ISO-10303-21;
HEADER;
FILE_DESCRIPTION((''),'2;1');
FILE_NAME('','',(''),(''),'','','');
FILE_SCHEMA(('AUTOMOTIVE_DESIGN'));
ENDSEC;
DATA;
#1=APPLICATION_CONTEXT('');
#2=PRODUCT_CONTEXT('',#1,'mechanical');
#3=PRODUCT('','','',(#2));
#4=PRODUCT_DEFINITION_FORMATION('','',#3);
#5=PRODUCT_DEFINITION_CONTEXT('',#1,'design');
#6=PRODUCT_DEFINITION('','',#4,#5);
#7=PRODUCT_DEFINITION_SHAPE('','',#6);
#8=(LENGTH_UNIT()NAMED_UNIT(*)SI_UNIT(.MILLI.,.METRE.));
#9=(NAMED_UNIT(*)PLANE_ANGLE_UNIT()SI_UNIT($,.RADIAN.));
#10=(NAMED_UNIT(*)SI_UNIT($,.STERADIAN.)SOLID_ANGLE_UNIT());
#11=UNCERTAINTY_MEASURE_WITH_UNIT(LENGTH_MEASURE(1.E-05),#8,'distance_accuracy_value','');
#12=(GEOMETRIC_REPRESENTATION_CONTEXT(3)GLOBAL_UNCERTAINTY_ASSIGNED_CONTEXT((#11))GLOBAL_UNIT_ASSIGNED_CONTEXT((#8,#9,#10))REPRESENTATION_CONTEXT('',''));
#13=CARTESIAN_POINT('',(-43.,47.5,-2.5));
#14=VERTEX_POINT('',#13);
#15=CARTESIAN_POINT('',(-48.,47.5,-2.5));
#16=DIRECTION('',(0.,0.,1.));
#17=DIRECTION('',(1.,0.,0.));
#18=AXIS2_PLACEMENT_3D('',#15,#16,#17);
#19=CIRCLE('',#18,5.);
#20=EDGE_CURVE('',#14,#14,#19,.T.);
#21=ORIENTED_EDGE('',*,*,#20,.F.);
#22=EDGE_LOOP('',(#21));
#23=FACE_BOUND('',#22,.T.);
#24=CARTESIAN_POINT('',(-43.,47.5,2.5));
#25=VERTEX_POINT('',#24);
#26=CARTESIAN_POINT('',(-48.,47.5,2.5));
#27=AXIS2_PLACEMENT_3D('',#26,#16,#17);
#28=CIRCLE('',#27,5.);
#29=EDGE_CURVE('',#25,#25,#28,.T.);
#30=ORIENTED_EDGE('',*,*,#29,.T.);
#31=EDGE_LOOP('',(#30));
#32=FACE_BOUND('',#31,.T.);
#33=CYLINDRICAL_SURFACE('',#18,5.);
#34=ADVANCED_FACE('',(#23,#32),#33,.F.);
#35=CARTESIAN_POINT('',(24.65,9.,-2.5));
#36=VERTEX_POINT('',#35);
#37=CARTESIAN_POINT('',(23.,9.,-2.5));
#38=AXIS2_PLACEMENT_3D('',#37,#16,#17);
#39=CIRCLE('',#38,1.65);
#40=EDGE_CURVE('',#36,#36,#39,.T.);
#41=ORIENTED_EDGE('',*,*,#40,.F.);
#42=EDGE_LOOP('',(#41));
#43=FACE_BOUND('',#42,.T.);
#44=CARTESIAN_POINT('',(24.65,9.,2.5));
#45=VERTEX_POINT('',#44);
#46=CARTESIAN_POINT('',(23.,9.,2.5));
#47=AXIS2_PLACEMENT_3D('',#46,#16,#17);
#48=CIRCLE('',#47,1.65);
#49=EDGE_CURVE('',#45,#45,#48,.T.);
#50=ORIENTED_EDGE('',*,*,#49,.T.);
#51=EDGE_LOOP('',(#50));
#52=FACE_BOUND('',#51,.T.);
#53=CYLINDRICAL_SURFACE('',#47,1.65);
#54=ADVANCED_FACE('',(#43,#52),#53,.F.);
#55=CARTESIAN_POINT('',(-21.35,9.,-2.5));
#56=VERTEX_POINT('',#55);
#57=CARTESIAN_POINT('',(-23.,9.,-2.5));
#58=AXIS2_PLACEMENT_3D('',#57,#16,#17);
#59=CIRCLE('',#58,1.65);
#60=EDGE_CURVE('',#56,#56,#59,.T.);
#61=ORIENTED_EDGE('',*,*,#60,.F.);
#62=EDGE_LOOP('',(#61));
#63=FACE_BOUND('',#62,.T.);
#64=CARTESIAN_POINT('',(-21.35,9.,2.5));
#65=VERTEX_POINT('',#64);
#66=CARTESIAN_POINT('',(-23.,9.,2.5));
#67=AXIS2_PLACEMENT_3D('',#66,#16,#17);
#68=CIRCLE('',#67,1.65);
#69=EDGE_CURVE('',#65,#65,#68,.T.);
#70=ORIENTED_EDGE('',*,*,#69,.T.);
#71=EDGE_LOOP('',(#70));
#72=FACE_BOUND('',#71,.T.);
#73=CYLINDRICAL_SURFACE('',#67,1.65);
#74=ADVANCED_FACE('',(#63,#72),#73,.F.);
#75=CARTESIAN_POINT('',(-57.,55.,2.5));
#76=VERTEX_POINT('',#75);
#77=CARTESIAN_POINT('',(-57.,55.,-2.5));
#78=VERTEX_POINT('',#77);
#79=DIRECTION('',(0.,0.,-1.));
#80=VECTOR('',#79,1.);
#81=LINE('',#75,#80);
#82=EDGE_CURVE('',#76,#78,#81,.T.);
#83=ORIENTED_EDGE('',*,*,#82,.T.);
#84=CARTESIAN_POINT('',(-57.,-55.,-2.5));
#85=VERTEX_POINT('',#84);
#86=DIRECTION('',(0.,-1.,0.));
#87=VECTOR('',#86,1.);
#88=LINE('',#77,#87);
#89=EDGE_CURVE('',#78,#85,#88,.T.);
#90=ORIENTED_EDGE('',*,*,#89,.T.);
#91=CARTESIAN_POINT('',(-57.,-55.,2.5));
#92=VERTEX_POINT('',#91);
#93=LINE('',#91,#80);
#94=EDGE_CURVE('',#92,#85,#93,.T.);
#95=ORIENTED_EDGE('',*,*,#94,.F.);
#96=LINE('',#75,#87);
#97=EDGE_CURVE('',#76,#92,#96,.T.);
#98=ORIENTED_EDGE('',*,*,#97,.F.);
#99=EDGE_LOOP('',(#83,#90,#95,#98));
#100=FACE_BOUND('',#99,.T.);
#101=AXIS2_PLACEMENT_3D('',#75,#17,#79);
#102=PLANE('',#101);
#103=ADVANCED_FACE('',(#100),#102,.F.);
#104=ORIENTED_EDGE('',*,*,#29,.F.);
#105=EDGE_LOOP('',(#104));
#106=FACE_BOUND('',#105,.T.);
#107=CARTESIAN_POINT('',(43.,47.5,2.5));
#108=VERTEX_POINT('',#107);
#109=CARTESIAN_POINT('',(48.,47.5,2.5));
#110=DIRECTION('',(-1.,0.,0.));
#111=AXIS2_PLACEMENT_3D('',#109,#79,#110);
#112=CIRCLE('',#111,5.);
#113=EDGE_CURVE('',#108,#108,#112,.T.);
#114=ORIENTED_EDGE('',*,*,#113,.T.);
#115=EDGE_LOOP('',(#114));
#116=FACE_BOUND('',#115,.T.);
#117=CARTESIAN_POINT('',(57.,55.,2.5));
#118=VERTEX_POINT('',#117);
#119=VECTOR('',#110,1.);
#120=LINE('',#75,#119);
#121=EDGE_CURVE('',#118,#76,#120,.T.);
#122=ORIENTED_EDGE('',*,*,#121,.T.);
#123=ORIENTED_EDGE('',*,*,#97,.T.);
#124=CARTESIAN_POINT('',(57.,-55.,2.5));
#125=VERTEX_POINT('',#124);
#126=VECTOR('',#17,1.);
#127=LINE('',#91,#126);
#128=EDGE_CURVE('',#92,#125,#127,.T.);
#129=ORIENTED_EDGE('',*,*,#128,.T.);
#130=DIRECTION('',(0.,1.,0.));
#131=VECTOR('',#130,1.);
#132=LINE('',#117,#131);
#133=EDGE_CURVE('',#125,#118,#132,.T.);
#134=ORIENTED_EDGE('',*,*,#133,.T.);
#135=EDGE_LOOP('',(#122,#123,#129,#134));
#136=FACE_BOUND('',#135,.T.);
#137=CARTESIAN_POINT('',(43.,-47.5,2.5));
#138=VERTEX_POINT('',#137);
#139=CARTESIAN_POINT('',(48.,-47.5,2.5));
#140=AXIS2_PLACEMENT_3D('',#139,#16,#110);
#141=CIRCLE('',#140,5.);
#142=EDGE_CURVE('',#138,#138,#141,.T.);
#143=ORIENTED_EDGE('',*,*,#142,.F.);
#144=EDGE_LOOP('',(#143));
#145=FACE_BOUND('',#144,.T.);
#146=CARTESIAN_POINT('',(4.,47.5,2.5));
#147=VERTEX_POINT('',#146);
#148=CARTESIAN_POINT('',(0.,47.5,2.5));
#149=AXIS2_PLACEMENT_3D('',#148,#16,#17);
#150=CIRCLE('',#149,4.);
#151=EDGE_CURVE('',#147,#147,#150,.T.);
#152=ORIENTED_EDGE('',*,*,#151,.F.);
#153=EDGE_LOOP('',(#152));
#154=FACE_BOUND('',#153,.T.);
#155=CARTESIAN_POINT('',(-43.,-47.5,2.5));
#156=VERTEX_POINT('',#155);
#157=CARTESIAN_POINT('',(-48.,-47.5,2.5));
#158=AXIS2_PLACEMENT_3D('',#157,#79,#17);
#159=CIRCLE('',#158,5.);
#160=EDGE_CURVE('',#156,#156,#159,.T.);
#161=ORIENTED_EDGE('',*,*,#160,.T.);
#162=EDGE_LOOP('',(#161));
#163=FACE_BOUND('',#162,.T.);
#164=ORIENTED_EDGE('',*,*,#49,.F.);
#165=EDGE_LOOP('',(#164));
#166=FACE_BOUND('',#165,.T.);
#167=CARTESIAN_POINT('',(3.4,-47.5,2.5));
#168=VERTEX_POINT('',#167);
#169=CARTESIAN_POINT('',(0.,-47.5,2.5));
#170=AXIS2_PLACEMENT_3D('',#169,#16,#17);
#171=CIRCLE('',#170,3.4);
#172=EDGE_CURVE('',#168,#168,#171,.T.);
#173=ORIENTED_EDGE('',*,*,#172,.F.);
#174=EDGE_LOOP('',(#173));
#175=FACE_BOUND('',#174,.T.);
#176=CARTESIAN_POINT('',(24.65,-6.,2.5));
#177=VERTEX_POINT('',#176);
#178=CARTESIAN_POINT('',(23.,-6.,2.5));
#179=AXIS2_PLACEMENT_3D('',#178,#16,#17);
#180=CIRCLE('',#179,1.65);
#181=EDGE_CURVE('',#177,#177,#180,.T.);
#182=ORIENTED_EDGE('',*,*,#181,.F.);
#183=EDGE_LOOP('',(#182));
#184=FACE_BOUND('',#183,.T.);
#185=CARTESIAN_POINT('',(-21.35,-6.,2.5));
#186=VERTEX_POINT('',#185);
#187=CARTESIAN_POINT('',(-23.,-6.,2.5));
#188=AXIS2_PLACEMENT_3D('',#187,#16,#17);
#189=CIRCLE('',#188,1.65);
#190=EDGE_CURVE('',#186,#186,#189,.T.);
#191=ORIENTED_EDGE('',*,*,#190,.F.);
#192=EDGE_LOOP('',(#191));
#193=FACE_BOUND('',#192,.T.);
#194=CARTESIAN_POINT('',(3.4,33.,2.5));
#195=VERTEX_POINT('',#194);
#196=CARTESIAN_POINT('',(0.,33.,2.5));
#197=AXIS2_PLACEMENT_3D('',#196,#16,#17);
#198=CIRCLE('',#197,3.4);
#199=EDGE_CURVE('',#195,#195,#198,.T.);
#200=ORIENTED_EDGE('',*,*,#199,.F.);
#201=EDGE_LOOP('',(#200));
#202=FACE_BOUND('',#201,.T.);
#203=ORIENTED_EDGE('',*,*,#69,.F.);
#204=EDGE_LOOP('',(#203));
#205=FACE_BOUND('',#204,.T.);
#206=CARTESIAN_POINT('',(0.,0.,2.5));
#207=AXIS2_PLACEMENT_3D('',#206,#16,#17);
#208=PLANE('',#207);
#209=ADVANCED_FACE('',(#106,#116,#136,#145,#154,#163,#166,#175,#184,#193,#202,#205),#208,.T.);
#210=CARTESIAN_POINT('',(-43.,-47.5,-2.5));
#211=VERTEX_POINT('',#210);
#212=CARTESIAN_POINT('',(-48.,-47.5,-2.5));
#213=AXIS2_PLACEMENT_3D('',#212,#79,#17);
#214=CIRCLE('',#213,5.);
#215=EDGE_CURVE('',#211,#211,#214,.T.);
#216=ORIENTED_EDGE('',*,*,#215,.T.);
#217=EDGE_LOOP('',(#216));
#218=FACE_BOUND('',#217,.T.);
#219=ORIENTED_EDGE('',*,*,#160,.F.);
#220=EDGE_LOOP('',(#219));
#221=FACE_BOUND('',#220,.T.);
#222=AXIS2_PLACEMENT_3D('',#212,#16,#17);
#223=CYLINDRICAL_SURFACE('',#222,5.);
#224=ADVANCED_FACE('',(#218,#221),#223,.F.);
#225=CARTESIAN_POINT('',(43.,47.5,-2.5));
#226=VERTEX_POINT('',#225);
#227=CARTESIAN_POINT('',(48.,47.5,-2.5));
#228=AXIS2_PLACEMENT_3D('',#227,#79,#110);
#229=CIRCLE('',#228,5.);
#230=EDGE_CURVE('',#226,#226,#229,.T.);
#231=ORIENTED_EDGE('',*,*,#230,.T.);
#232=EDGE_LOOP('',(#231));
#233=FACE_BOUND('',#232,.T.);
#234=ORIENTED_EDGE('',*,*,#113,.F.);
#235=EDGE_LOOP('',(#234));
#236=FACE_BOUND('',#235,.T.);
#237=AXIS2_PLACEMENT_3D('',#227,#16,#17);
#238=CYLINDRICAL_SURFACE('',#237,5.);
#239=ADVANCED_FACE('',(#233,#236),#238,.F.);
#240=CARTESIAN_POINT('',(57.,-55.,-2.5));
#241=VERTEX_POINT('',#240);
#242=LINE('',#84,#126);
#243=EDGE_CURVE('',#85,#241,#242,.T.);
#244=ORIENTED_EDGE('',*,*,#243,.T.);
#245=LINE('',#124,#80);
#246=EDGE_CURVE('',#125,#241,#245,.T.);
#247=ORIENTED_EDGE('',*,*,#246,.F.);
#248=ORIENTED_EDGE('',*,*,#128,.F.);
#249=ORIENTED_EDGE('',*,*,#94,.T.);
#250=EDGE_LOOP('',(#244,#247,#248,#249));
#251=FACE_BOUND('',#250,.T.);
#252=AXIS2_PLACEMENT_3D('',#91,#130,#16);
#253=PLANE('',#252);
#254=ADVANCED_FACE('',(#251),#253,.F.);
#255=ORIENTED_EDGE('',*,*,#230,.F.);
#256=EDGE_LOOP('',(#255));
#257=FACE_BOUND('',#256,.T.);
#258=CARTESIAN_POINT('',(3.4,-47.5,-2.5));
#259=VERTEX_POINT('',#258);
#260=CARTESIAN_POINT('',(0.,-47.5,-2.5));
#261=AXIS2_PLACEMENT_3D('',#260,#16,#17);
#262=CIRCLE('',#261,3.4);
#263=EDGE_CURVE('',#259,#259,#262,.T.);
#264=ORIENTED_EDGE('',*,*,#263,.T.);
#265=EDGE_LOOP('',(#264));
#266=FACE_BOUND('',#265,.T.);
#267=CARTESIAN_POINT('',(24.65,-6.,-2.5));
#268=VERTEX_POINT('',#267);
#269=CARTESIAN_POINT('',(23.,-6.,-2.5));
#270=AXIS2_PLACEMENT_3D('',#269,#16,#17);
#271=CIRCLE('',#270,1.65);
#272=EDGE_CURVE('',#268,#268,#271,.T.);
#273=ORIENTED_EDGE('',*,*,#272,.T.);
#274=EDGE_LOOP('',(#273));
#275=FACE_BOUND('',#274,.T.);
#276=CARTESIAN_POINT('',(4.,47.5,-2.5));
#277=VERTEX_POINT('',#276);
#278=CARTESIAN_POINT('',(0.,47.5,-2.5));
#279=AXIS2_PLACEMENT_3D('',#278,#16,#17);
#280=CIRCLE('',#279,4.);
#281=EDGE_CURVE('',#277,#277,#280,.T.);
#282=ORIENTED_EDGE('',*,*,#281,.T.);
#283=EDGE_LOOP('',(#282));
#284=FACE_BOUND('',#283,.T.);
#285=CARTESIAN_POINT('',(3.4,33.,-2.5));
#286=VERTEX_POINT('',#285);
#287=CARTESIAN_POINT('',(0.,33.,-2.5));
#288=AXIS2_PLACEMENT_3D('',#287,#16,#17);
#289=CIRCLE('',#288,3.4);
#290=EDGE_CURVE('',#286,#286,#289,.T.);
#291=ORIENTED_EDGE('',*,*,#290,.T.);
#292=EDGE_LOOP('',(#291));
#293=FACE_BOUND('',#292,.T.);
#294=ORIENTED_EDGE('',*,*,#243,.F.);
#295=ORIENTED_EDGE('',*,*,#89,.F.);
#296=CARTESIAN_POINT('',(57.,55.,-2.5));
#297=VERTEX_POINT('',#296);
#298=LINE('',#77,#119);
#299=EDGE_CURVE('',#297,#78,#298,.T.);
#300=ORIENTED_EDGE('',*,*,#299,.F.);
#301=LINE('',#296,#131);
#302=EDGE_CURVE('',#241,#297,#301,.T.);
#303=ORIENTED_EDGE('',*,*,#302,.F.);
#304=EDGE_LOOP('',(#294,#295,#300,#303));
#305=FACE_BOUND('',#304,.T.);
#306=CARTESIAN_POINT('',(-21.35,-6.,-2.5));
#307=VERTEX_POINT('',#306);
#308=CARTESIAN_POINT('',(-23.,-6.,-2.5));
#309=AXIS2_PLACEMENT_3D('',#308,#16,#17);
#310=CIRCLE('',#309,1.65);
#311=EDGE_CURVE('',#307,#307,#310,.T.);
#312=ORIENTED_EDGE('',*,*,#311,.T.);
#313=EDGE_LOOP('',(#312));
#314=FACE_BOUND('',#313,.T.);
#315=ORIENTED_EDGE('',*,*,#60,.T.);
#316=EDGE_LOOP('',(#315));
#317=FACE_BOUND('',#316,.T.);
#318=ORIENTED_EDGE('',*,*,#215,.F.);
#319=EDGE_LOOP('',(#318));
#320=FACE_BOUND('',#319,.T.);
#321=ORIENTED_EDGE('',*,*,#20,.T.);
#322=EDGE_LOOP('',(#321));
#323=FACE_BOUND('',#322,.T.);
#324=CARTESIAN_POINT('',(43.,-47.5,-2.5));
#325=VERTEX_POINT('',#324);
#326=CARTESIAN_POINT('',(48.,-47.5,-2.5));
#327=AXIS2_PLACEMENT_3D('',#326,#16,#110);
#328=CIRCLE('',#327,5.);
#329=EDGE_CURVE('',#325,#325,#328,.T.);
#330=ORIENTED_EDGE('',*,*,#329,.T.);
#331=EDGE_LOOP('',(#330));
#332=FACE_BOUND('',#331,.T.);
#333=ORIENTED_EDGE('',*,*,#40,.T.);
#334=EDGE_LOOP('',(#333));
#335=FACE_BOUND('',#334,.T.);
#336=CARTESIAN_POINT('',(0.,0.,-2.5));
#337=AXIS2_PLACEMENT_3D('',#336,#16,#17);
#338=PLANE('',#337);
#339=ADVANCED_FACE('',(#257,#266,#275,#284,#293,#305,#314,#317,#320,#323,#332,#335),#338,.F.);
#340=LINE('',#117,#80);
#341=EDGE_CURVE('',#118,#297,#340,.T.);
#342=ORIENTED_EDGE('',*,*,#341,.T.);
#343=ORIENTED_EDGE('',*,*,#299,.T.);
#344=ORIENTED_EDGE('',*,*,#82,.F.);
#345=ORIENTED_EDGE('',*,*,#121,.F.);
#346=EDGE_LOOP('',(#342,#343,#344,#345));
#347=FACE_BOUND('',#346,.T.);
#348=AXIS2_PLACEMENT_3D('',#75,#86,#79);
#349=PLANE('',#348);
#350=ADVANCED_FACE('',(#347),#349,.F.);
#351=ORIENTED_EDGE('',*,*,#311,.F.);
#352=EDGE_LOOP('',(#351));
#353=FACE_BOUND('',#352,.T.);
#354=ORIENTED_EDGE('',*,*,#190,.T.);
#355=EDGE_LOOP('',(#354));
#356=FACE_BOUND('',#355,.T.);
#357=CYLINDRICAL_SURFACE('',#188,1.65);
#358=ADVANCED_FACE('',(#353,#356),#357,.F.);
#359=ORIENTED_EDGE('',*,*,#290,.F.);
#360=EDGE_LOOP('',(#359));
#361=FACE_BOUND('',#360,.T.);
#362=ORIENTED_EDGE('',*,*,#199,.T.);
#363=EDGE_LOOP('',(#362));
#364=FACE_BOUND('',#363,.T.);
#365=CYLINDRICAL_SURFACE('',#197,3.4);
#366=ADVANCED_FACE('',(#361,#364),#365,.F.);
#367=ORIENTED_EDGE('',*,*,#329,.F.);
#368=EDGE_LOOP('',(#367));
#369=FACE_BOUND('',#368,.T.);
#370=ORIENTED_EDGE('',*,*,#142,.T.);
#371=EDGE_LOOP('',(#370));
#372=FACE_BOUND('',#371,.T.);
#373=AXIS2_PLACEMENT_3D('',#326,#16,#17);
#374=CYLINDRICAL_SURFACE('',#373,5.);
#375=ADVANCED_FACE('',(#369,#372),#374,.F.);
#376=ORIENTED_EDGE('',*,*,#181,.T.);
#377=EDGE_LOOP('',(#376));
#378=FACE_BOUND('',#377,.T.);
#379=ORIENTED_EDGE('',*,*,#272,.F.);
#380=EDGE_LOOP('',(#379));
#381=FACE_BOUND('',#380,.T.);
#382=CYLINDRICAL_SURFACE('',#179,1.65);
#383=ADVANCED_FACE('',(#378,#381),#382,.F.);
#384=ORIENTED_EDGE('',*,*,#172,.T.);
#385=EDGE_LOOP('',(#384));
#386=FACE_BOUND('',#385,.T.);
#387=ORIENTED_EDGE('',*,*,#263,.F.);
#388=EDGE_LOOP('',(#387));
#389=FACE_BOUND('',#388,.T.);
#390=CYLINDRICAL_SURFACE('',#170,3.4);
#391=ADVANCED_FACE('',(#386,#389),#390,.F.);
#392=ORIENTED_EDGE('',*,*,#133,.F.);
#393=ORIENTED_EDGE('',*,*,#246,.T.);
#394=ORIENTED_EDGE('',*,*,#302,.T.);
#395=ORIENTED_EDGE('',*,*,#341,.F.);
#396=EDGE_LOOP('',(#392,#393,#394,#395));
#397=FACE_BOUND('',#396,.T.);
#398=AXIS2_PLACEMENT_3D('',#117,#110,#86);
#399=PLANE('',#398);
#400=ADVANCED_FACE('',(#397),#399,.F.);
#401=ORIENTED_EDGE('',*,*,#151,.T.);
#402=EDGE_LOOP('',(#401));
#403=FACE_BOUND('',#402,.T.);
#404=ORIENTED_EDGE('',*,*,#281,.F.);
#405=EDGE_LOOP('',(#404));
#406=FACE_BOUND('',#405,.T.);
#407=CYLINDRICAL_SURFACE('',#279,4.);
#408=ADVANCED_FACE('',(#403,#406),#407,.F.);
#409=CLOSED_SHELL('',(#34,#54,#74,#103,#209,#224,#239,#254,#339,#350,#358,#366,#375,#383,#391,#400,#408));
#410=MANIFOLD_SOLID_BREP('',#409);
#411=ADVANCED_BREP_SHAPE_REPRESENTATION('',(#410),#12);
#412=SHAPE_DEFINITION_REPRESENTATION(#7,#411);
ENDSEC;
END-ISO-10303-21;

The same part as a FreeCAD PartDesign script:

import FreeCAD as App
import Part
import Sketcher


def add_polygon(sketch, points):
    """Adds a closed chain of lines whose ends are joined by coincident constraints."""
    first, n = sketch.GeometryCount, len(points)
    for a, b in zip(points, points[1:] + points[:1]):
        sketch.addGeometry(Part.LineSegment(App.Vector(*a, 0), App.Vector(*b, 0)), False)
    for i in range(n):
        sketch.addConstraint(Sketcher.Constraint("Coincident", first + i, 2, first + (i + 1) % n, 1))

doc = App.newDocument("Part")
params = doc.addObject("Spreadsheet::Sheet", "Params")
for row, (alias, value) in enumerate([
    ("sketch1_width", "114 mm"),
    ("sketch1_height", "110 mm"),
    ("pad1_length", "5 mm"),
    ("sketch2_diameter", "10 mm"),
    ("sketch3_diameter", "10 mm"),
    ("sketch4_diameter", "3.3 mm"),
    ("hole_diameter", "3.3 mm"),
    ("sketch5_diameter", "6.8 mm"),
    ("hole2_diameter", "6.8 mm"),
    ("sketch6_diameter", "8 mm"),
    ("sketch7_diameter", "6.8 mm"),
    ("hole3_diameter", "6.8 mm"),
], start=1):
    params.set(f"A{row}", alias)
    params.set(f"B{row}", "=" + value)
    params.setAlias(f"B{row}", alias)

body = doc.addObject("PartDesign::Body", "Body")

# Sketch on XY plane
sketch1 = body.newObject("Sketcher::SketchObject", "Sketch")
sketch1.AttachmentSupport = (doc.getObject("XY_Plane"), [""])
sketch1.MapMode = "FlatFace"
add_polygon(sketch1, [(-57, 55), (-57, -55), (57, -55), (57, 55)])  # lines 0-3
sketch1.addConstraint([
    Sketcher.Constraint("Vertical", 0),
    Sketcher.Constraint("Horizontal", 1),
    Sketcher.Constraint("Vertical", 2),
    Sketcher.Constraint("Horizontal", 3),
    Sketcher.Constraint("Symmetric", 0, 2, 2, 2, -1, 1),
    Sketcher.Constraint("DistanceX", 1, 1, 1, 2, 114.0),
    Sketcher.Constraint("DistanceY", 0, 2, 0, 1, 110.0),
])
sketch1.setExpression("Constraints[9]", "Params.sketch1_width")
sketch1.setExpression("Constraints[10]", "Params.sketch1_height")
pad1 = body.newObject("PartDesign::Pad", "Pad")
pad1.Profile = sketch1
pad1.setExpression("Length", "Params.pad1_length")
pad1.Midplane = True

# Sketch on XY plane
sketch2 = body.newObject("Sketcher::SketchObject", "Sketch001")
sketch2.AttachmentSupport = (doc.getObject("XY_Plane"), [""])
sketch2.MapMode = "FlatFace"
sketch2.AttachmentOffset = App.Placement(App.Vector(0, 0, 2.5), App.Rotation())
sketch2.addGeometry(Part.Circle(App.Vector(-48, 48, 0), App.Vector(0, 0, 1), 5), False)
sketch2.addConstraint([
    Sketcher.Constraint("Diameter", 0, 10.0),
    Sketcher.Constraint("DistanceX", 0, 3, -1, 1, 48.0),
    Sketcher.Constraint("DistanceY", -1, 1, 0, 3, 47.5),
])
sketch2.setExpression("Constraints[0]", "Params.sketch2_diameter")
pocket1 = body.newObject("PartDesign::Pocket", "Pocket")
pocket1.Profile = sketch2
pocket1.Type = "ThroughAll"
doc.recompute()

mirrored = body.newObject("PartDesign::Mirrored", "Mirrored")
mirrored.Originals = [pocket1]
mirrored.MirrorPlane = (doc.getObject("XZ_Plane"), [""])
body.Tip = mirrored
doc.recompute()

mirrored2 = body.newObject("PartDesign::Mirrored", "Mirrored001")
mirrored2.Originals = [pocket1]
mirrored2.MirrorPlane = (doc.getObject("YZ_Plane"), [""])
body.Tip = mirrored2

# Sketch on XY plane
sketch3 = body.newObject("Sketcher::SketchObject", "Sketch002")
sketch3.AttachmentSupport = (doc.getObject("XY_Plane"), [""])
sketch3.MapMode = "FlatFace"
sketch3.AttachmentOffset = App.Placement(App.Vector(0, 0, 2.5), App.Rotation())
sketch3.addGeometry(Part.Circle(App.Vector(48, -48, 0), App.Vector(0, 0, 1), 5), False)
sketch3.addConstraint([
    Sketcher.Constraint("Diameter", 0, 10.0),
    Sketcher.Constraint("DistanceX", -1, 1, 0, 3, 48.0),
    Sketcher.Constraint("DistanceY", 0, 3, -1, 1, 47.5),
])
sketch3.setExpression("Constraints[0]", "Params.sketch3_diameter")
pocket2 = body.newObject("PartDesign::Pocket", "Pocket001")
pocket2.Profile = sketch3
pocket2.Type = "ThroughAll"

# Sketch on XY plane
sketch4 = body.newObject("Sketcher::SketchObject", "Sketch003")
sketch4.AttachmentSupport = (doc.getObject("XY_Plane"), [""])
sketch4.MapMode = "FlatFace"
sketch4.AttachmentOffset = App.Placement(App.Vector(0, 0, 2.5), App.Rotation())
sketch4.addGeometry([
    Part.Circle(App.Vector(-23, 9, 0), App.Vector(0, 0, 1), 1.6),
    Part.Circle(App.Vector(-23, -6, 0), App.Vector(0, 0, 1), 1.6),
], False)
sketch4.addConstraint([
    Sketcher.Constraint("Equal", 0, 1),
    Sketcher.Constraint("Vertical", 0, 3, 1, 3),
    Sketcher.Constraint("Diameter", 0, 3.3),
    Sketcher.Constraint("DistanceX", 0, 3, -1, 1, 23.0),
    Sketcher.Constraint("DistanceY", -1, 1, 0, 3, 9.0),
    Sketcher.Constraint("DistanceY", 1, 3, -1, 1, 6.0),
])
sketch4.setExpression("Constraints[2]", "Params.sketch4_diameter")
doc.recompute()
hole = body.newObject("PartDesign::Hole", "Hole")
hole.Profile = sketch4
hole.ThreadType = "None"
hole.setExpression("Diameter", "Params.hole_diameter")
hole.DepthType = "ThroughAll"
doc.recompute()

mirrored3 = body.newObject("PartDesign::Mirrored", "Mirrored002")
mirrored3.Originals = [hole]
mirrored3.MirrorPlane = (doc.getObject("YZ_Plane"), [""])
body.Tip = mirrored3

# Sketch on XY plane
sketch5 = body.newObject("Sketcher::SketchObject", "Sketch004")
sketch5.AttachmentSupport = (doc.getObject("XY_Plane"), [""])
sketch5.MapMode = "FlatFace"
sketch5.AttachmentOffset = App.Placement(App.Vector(0, 0, 2.5), App.Rotation())
sketch5.addGeometry(Part.Circle(App.Vector(0, 33, 0), App.Vector(0, 0, 1), 3.4), False)
sketch5.addConstraint([
    Sketcher.Constraint("PointOnObject", 0, 3, -2),
    Sketcher.Constraint("Diameter", 0, 6.8),
    Sketcher.Constraint("DistanceY", -1, 1, 0, 3, 33.0),
])
sketch5.setExpression("Constraints[1]", "Params.sketch5_diameter")
doc.recompute()
hole2 = body.newObject("PartDesign::Hole", "Hole001")
hole2.Profile = sketch5
hole2.ThreadType = "None"
hole2.setExpression("Diameter", "Params.hole2_diameter")
hole2.DepthType = "ThroughAll"

# Sketch on XY plane
sketch6 = body.newObject("Sketcher::SketchObject", "Sketch005")
sketch6.AttachmentSupport = (doc.getObject("XY_Plane"), [""])
sketch6.MapMode = "FlatFace"
sketch6.AttachmentOffset = App.Placement(App.Vector(0, 0, 2.5), App.Rotation())
sketch6.addGeometry(Part.Circle(App.Vector(0, 47.5, 0), App.Vector(0, 0, 1), 4), False)
sketch6.addConstraint([
    Sketcher.Constraint("PointOnObject", 0, 3, -2),
    Sketcher.Constraint("Diameter", 0, 8.0),
    Sketcher.Constraint("DistanceY", -1, 1, 0, 3, 47.5),
])
sketch6.setExpression("Constraints[1]", "Params.sketch6_diameter")
pocket3 = body.newObject("PartDesign::Pocket", "Pocket002")
pocket3.Profile = sketch6
pocket3.Type = "ThroughAll"

# Sketch on XY plane
sketch7 = body.newObject("Sketcher::SketchObject", "Sketch006")
sketch7.AttachmentSupport = (doc.getObject("XY_Plane"), [""])
sketch7.MapMode = "FlatFace"
sketch7.AttachmentOffset = App.Placement(App.Vector(0, 0, 2.5), App.Rotation())
sketch7.addGeometry(Part.Circle(App.Vector(0, -47.5, 0), App.Vector(0, 0, 1), 3.4), False)
sketch7.addConstraint([
    Sketcher.Constraint("PointOnObject", 0, 3, -2),
    Sketcher.Constraint("Diameter", 0, 6.8),
    Sketcher.Constraint("DistanceY", 0, 3, -1, 1, 47.5),
])
sketch7.setExpression("Constraints[1]", "Params.sketch7_diameter")
doc.recompute()
hole3 = body.newObject("PartDesign::Hole", "Hole002")
hole3.Profile = sketch7
hole3.ThreadType = "None"
hole3.setExpression("Diameter", "Params.hole3_diameter")
hole3.DepthType = "ThroughAll"

doc.recompute()
